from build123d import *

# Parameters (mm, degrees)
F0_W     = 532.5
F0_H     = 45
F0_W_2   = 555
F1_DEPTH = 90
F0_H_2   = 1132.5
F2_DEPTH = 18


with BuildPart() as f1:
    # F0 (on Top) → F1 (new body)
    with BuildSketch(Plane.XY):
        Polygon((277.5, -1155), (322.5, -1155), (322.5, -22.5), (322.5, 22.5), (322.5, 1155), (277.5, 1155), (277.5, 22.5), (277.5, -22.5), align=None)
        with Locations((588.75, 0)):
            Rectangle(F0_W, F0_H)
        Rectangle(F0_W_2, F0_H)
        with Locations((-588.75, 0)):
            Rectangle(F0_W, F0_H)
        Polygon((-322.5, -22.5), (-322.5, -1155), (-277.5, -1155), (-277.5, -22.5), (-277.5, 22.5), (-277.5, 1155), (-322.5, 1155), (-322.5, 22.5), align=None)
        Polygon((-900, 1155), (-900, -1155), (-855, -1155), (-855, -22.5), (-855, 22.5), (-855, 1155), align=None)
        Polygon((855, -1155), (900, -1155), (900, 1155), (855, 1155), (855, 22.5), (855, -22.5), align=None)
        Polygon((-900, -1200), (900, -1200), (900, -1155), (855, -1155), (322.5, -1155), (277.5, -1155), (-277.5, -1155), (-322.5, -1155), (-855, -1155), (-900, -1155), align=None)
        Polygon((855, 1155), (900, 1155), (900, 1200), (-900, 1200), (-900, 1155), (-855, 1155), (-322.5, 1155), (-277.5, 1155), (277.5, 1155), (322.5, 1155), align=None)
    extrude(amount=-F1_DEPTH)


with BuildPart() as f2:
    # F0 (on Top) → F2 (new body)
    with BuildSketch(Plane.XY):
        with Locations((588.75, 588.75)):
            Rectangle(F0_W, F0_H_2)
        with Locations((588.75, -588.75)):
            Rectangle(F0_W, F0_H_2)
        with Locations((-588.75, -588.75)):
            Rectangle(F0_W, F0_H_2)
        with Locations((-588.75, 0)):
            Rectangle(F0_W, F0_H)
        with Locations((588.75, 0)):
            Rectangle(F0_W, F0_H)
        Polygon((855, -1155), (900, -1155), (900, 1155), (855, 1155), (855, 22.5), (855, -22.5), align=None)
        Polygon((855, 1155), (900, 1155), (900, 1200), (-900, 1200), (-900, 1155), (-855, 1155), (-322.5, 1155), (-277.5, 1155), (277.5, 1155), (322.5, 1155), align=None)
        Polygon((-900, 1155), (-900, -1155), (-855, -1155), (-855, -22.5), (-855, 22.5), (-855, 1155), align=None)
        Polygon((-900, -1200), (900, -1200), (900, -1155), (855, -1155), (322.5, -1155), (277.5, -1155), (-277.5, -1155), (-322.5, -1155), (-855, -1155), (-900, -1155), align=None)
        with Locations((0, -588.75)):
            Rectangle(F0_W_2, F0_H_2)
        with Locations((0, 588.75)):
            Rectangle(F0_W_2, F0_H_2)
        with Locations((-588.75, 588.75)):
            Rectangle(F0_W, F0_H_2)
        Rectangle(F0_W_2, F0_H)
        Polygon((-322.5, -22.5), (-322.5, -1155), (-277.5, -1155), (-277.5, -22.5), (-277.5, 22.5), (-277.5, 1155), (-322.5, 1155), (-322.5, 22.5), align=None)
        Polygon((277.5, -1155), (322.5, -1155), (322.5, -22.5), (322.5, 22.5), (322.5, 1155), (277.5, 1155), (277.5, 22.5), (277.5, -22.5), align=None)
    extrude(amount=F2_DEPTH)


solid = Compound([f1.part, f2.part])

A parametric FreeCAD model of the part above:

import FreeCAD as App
import Part
import Sketcher
from FreeCAD import Vector
Q = App.Units.Quantity


def add_polygon(sketch, points):
    """Adds a closed chain of lines whose ends are joined by coincident constraints."""
    first, n = sketch.GeometryCount, len(points)
    for a, b in zip(points, points[1:] + points[:1]):
        sketch.addGeometry(Part.LineSegment(App.Vector(*a, 0), App.Vector(*b, 0)), False)
    for i in range(n):
        sketch.addConstraint(Sketcher.Constraint("Coincident", first + i, 2, first + (i + 1) % n, 1))

doc = App.newDocument("Part")
body = doc.addObject("PartDesign::Body", "Body")

# Sketch on XY plane
sketch1 = body.newObject("Sketcher::SketchObject", "Sketch")
sketch1.AttachmentSupport = (doc.getObject("XY_Plane"), [""])
sketch1.MapMode = "FlatFace"
add_polygon(sketch1, [(-900, -1200), (900, -1200), (900, 1200), (-900, 1200)])  # lines 0-3
add_polygon(sketch1, [(322.5, -1155), (322.5, -22.5), (855, -22.5), (855, -1155)])  # lines 4-7
add_polygon(sketch1, [(855, 1155), (855, 22.5), (322.5, 22.5), (322.5, 1155)])  # lines 8-11
add_polygon(sketch1, [(277.5, 1155), (277.5, 22.5), (-277.5, 22.5), (-277.5, 1155)])  # lines 12-15
add_polygon(sketch1, [(-322.5, 1155), (-322.5, 22.5), (-855, 22.5), (-855, 1155)])  # lines 16-19
add_polygon(sketch1, [(-855, -1155), (-855, -22.5), (-322.5, -22.5), (-322.5, -1155)])  # lines 20-23
add_polygon(sketch1, [(-277.5, -1155), (-277.5, -22.5), (277.5, -22.5), (277.5, -1155)])  # lines 24-27
sketch1.addConstraint(Sketcher.Constraint("Horizontal", 0))
sketch1.addConstraint(Sketcher.Constraint("Vertical", 1))
sketch1.addConstraint(Sketcher.Constraint("Horizontal", 2))
sketch1.addConstraint(Sketcher.Constraint("Vertical", 3))
sketch1.addConstraint(Sketcher.Constraint("Vertical", 4))
sketch1.addConstraint(Sketcher.Constraint("Horizontal", 5))
sketch1.addConstraint(Sketcher.Constraint("Vertical", 6))
sketch1.addConstraint(Sketcher.Constraint("Horizontal", 7))
sketch1.addConstraint(Sketcher.Constraint("Vertical", 8))
sketch1.addConstraint(Sketcher.Constraint("Horizontal", 9))
sketch1.addConstraint(Sketcher.Constraint("Vertical", 10))
sketch1.addConstraint(Sketcher.Constraint("Horizontal", 11))
sketch1.addConstraint(Sketcher.Constraint("Vertical", 12))
sketch1.addConstraint(Sketcher.Constraint("Horizontal", 13))
sketch1.addConstraint(Sketcher.Constraint("Vertical", 14))
sketch1.addConstraint(Sketcher.Constraint("Horizontal", 15))
sketch1.addConstraint(Sketcher.Constraint("Vertical", 16))
sketch1.addConstraint(Sketcher.Constraint("Horizontal", 17))
sketch1.addConstraint(Sketcher.Constraint("Vertical", 18))
sketch1.addConstraint(Sketcher.Constraint("Horizontal", 19))
sketch1.addConstraint(Sketcher.Constraint("Vertical", 20))
sketch1.addConstraint(Sketcher.Constraint("Horizontal", 21))
sketch1.addConstraint(Sketcher.Constraint("Vertical", 22))
sketch1.addConstraint(Sketcher.Constraint("Horizontal", 23))
sketch1.addConstraint(Sketcher.Constraint("Vertical", 24))
sketch1.addConstraint(Sketcher.Constraint("Horizontal", 25))
sketch1.addConstraint(Sketcher.Constraint("Vertical", 26))
sketch1.addConstraint(Sketcher.Constraint("Horizontal", 27))
sketch1.addConstraint(Sketcher.Constraint("Symmetric", 0, 2, 2, 2, -1, 1))
sketch1.addConstraint(Sketcher.Constraint("Symmetric", 4, 2, 16, 2, -1, 1))
sketch1.addConstraint(Sketcher.Constraint("Symmetric", 6, 2, 18, 2, -1, 1))
sketch1.addConstraint(Sketcher.Constraint("Symmetric", 8, 2, 20, 2, -1, 1))
sketch1.addConstraint(Sketcher.Constraint("Symmetric", 10, 2, 22, 2, -1, 1))
sketch1.addConstraint(Sketcher.Constraint("Symmetric", 12, 2, 24, 2, -1, 1))
sketch1.addConstraint(Sketcher.Constraint("Symmetric", 14, 2, 26, 2, -1, 1))
sketch1.addConstraint(Sketcher.Constraint("Symmetric", 9, 2, 16, 2, -2))
sketch1.addConstraint(Sketcher.Constraint("Symmetric", 11, 2, 18, 2, -2))
sketch1.addConstraint(Sketcher.Constraint("Horizontal", 9, 2, 12, 2))
sketch1.addConstraint(Sketcher.Constraint("Horizontal", 11, 2, 14, 2))
sketch1.addConstraint(Sketcher.Constraint("Vertical", 14, 2, 24, 2))
sketch1.addConstraint(Sketcher.Constraint("DistanceX", 0, 1, 0, 2, Q("1800 mm")))
sketch1.addConstraint(Sketcher.Constraint("DistanceX", 13, 2, 13, 1, Q("555 mm")))
sketch1.addConstraint(Sketcher.Constraint("DistanceY", 1, 1, 1, 2, Q("2400 mm")))
sketch1.addConstraint(Sketcher.Constraint("DistanceX", 5, 1, 5, 2, Q("532.5 mm")))
sketch1.addConstraint(Sketcher.Constraint("DistanceY", 4, 1, 4, 2, Q("1132.5 mm")))
sketch1.addConstraint(Sketcher.Constraint("DistanceX", -1, 1, 5, 2, Q("855 mm")))
sketch1.addConstraint(Sketcher.Constraint("DistanceY", 6, 2, -1, 1, Q("1155 mm")))
pad1 = body.newObject("PartDesign::Pad", "Pad")
pad1.Profile = sketch1
pad1.Length = 90
pad1.Reversed = True
body2 = doc.addObject("PartDesign::Body", "Body001")

# Sketch on XY plane
sketch2 = body2.newObject("Sketcher::SketchObject", "Sketch001")
sketch2.AttachmentSupport = (doc.getObject("XY_Plane001"), [""])
sketch2.MapMode = "FlatFace"
add_polygon(sketch2, [(900, 1200), (-900, 1200), (-900, -1200), (900, -1200)])  # lines 0-3
sketch2.addConstraint(Sketcher.Constraint("Horizontal", 0))
sketch2.addConstraint(Sketcher.Constraint("Vertical", 1))
sketch2.addConstraint(Sketcher.Constraint("Horizontal", 2))
sketch2.addConstraint(Sketcher.Constraint("Vertical", 3))
sketch2.addConstraint(Sketcher.Constraint("Symmetric", 0, 2, 2, 2, -1, 1))
sketch2.addConstraint(Sketcher.Constraint("DistanceX", 0, 2, 0, 1, Q("1800 mm")))
sketch2.addConstraint(Sketcher.Constraint("DistanceY", 1, 2, 1, 1, Q("2400 mm")))
pad2 = body2.newObject("PartDesign::Pad", "Pad001")
pad2.Profile = sketch2
pad2.Length = 18

doc.recompute()
